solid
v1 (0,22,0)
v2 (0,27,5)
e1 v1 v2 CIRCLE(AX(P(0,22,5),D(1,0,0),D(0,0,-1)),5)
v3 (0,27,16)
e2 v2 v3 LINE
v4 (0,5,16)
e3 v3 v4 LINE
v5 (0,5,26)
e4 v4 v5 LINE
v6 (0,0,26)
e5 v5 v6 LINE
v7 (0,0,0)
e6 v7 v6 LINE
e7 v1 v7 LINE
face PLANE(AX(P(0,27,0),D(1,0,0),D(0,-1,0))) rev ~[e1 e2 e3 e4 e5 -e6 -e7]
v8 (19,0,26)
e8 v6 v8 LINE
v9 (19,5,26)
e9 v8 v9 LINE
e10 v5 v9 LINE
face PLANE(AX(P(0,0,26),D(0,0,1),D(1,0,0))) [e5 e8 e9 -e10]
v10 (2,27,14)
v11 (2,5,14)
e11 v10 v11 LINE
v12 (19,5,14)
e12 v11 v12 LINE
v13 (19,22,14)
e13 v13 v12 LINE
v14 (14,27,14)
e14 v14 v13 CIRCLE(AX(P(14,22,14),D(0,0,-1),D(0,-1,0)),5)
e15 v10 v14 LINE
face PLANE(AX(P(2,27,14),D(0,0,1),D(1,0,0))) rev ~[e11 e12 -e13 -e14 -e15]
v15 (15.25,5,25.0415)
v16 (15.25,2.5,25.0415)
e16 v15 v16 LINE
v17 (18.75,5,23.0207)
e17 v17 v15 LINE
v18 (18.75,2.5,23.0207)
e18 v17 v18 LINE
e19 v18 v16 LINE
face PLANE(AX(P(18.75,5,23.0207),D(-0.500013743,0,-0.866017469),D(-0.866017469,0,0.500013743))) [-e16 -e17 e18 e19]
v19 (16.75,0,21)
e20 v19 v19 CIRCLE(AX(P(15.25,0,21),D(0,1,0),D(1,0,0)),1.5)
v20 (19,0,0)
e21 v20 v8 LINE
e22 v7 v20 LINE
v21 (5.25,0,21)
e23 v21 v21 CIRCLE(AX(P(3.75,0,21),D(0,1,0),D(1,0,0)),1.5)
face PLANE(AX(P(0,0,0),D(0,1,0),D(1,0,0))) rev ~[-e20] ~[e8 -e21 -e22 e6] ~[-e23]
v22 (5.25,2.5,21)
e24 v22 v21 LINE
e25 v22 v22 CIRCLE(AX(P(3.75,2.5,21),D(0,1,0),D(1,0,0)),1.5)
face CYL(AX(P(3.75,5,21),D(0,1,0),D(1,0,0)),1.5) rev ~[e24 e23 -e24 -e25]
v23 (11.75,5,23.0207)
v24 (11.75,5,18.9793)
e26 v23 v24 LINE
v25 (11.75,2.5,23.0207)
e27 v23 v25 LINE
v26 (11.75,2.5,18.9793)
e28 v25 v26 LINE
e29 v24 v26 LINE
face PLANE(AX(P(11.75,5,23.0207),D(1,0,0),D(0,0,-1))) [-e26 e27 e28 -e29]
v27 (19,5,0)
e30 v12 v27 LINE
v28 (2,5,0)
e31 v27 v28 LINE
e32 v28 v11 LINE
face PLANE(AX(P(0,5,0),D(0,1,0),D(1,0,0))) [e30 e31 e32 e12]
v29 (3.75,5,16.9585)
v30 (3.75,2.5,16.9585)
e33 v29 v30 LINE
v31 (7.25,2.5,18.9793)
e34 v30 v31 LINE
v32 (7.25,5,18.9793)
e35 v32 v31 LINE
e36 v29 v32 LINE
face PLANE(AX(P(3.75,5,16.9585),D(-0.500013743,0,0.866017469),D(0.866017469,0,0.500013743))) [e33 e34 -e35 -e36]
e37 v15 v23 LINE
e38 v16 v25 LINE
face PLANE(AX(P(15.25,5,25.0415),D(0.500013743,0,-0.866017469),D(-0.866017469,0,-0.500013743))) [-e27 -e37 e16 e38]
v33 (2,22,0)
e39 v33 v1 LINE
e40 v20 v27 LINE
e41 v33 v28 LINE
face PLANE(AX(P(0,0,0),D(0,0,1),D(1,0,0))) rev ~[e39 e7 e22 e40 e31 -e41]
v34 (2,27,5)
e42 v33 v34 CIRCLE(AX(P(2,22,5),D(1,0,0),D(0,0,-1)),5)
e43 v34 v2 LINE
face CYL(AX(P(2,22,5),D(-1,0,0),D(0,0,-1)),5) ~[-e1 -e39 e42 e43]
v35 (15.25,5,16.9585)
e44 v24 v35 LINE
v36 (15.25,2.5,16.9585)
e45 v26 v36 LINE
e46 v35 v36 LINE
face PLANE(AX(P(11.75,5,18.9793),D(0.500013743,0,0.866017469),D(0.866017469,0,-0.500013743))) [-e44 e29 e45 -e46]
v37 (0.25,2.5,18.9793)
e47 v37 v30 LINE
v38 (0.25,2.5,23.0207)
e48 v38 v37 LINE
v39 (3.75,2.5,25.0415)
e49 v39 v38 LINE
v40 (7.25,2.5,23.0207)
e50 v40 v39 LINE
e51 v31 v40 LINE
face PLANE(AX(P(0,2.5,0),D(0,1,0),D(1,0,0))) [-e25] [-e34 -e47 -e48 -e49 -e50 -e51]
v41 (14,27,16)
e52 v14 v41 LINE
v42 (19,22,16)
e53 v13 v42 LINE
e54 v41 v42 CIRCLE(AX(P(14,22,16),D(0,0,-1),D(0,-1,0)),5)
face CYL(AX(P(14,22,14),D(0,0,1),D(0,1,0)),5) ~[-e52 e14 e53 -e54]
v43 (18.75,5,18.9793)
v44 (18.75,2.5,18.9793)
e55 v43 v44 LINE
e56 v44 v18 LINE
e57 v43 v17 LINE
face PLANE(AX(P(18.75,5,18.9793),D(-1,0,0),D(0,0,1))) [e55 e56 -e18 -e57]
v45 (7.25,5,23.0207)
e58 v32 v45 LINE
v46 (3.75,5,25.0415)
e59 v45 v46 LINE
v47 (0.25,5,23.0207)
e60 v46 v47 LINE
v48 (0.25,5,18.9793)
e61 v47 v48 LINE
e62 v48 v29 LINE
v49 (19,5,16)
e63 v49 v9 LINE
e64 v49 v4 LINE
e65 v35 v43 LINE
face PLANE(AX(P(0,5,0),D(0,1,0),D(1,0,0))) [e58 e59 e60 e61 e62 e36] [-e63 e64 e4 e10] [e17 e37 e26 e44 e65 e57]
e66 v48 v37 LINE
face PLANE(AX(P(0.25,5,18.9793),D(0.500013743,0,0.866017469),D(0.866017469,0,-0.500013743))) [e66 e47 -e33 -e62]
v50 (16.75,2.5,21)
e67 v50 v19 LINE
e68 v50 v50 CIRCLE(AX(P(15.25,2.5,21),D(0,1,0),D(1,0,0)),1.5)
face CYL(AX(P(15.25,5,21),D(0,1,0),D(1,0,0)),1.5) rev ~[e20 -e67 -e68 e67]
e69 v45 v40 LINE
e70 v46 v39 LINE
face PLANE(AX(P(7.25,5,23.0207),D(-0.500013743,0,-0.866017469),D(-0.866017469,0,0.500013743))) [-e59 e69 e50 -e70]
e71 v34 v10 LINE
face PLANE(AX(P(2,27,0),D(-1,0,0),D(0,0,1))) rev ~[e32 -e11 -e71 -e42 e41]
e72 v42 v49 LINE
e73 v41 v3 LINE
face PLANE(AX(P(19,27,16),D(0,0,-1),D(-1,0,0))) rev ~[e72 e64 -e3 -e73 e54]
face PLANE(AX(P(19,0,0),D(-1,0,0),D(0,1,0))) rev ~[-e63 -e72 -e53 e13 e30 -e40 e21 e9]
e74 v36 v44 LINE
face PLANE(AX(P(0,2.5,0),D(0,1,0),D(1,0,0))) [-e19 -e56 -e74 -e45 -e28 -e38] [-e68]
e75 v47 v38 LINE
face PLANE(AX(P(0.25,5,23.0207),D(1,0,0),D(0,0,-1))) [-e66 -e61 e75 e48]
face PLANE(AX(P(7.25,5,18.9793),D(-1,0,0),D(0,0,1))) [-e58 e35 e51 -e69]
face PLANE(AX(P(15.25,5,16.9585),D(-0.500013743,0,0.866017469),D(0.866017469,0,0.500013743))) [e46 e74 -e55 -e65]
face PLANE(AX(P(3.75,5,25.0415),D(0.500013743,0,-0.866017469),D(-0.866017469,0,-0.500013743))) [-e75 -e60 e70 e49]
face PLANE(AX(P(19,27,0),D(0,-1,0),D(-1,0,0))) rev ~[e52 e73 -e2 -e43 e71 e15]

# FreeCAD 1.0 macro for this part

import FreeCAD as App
import Part
import Sketcher
from FreeCAD import Vector
Q = App.Units.Quantity


def edges_at(feature, points):
    """Names of the edges that pass closest to the given points."""
    edges = feature.Shape.Edges
    near = lambda p: min(range(len(edges)), key=lambda i: edges[i].distToShape(Part.Vertex(*p))[0])
    return sorted({f"Edge{near(p) + 1}" for p in points})


def add_polygon(sketch, points):
    """Adds a closed chain of lines whose ends are joined by coincident constraints."""
    first, n = sketch.GeometryCount, len(points)
    for a, b in zip(points, points[1:] + points[:1]):
        sketch.addGeometry(Part.LineSegment(App.Vector(*a, 0), App.Vector(*b, 0)), False)
    for i in range(n):
        sketch.addConstraint(Sketcher.Constraint("Coincident", first + i, 2, first + (i + 1) % n, 1))

doc = App.newDocument("Part")
body = doc.addObject("PartDesign::Body", "Body")

# Sketch on XY plane
sketch1 = body.newObject("Sketcher::SketchObject", "Sketch")
sketch1.AttachmentSupport = (doc.getObject("XY_Plane"), [""])
sketch1.MapMode = "FlatFace"
add_polygon(sketch1, [(0, 27), (0, 0), (19, 0), (19, 27)])  # lines 0-3
sketch1.addConstraint([
    Sketcher.Constraint("Vertical", 0),
    Sketcher.Constraint("Horizontal", 1),
    Sketcher.Constraint("Vertical", 2),
    Sketcher.Constraint("Horizontal", 3),
    Sketcher.Constraint("Coincident", 0, 2, -1, 1),
    Sketcher.Constraint("DistanceX", 1, 1, 1, 2, 19.0),
    Sketcher.Constraint("DistanceY", 0, 2, 0, 1, 27.0),
])
pad1 = body.newObject("PartDesign::Pad", "Pad")
pad1.Profile = sketch1
pad1.Length = 26

# Sketch on XZ plane
sketch2 = body.newObject("Sketcher::SketchObject", "Sketch001")
sketch2.AttachmentSupport = (doc.getObject("XZ_Plane"), [""])
sketch2.MapMode = "FlatFace"
sketch2.AttachmentOffset = App.Placement(Vector(0, 0, -27), App.Rotation())
add_polygon(sketch2, [(19, 14), (19, 0), (2, 0), (2, 14)])  # lines 0-3
add_polygon(sketch2, [(19, 26), (19, 16), (0, 16), (0, 26)])  # lines 4-7
sketch2.addConstraint([
    Sketcher.Constraint("Vertical", 0),
    Sketcher.Constraint("Horizontal", 1),
    Sketcher.Constraint("Vertical", 2),
    Sketcher.Constraint("Horizontal", 3),
    Sketcher.Constraint("Vertical", 4),
    Sketcher.Constraint("Horizontal", 5),
    Sketcher.Constraint("Vertical", 6),
    Sketcher.Constraint("Horizontal", 7),
    Sketcher.Constraint("PointOnObject", 0, 2, -1),
    Sketcher.Constraint("PointOnObject", 5, 2, -2),
    Sketcher.Constraint("Vertical", 3, 2, 4, 2),
    Sketcher.Constraint("DistanceY", 0, 2, 0, 1, 14.0),
    Sketcher.Constraint("DistanceY", 4, 2, 4, 1, 10.0),
    Sketcher.Constraint("DistanceX", -1, 1, 1, 2, 2.0),
    Sketcher.Constraint("DistanceY", 3, 2, 4, 2, 2.0),
    Sketcher.Constraint("DistanceX", 1, 2, 1, 1, 17.0),
])
pocket1 = body.newObject("PartDesign::Pocket", "Pocket")
pocket1.Profile = sketch2
pocket1.Length = 22
pocket1.Reversed = True

# Sketch on XZ plane
sketch3 = body.newObject("Sketcher::SketchObject", "Sketch002")
sketch3.AttachmentSupport = (doc.getObject("XZ_Plane"), [""])
sketch3.MapMode = "FlatFace"
sketch3.AttachmentOffset = App.Placement(Vector(0, 0, -5), App.Rotation())
sketch3.addGeometry([
    Part.Circle(Vector(3.75, 21, 0), Vector(0, 0, 1), 1.5),
    Part.Circle(Vector(15.25, 21, 0), Vector(0, 0, 1), 1.5),
], False)
sketch3.addConstraint([
    Sketcher.Constraint("Equal", 0, 1),
    Sketcher.Constraint("Horizontal", 0, 3, 1, 3),
    Sketcher.Constraint("Diameter", 0, 3.0),
    Sketcher.Constraint("DistanceX", 0, 3, 1, 3, 11.5),
    Sketcher.Constraint("DistanceX", -1, 1, 0, 3, 3.75),
    Sketcher.Constraint("DistanceY", -1, 1, 0, 3, 21.0),
])
pocket2 = body.newObject("PartDesign::Pocket", "Pocket001")
pocket2.Profile = sketch3
pocket2.Type = "ThroughAll"
pocket2.Reversed = True

# Sketch on XZ plane
sketch4 = body.newObject("Sketcher::SketchObject", "Sketch003")
sketch4.AttachmentSupport = (doc.getObject("XZ_Plane"), [""])
sketch4.MapMode = "FlatFace"
sketch4.AttachmentOffset = App.Placement(Vector(0, 0, -5), App.Rotation())
add_polygon(sketch4, [(7.25, 18.9793), (3.75, 16.9585), (0.25, 18.9793), (0.25, 23.0207), (3.75, 25.0415), (7.25, 23.0207)])  # lines 0-5
sketch4.addGeometry(Part.Circle(Vector(3.75, 21, 0), Vector(0, 0, 1), 1.5), False)  # 6
add_polygon(sketch4, [(18.75, 18.9793), (15.25, 16.9585), (11.75, 18.9793), (11.75, 23.0207), (15.25, 25.0415), (18.75, 23.0207)])  # lines 7-12
sketch4.addGeometry(Part.Circle(Vector(15.25, 21, 0), Vector(0, 0, 1), 1.5), False)  # 13
sketch4.addConstraint([
    Sketcher.Constraint("Vertical", 2),
    Sketcher.Constraint("Vertical", 5),
    Sketcher.Constraint("Vertical", 9),
    Sketcher.Constraint("Vertical", 12),
    Sketcher.Constraint("Equal", 6, 13),
    Sketcher.Constraint("Parallel", 0, 3),
    Sketcher.Constraint("Parallel", 1, 4),
    Sketcher.Constraint("Parallel", 3, 7),
    Sketcher.Constraint("Parallel", 4, 8),
    Sketcher.Constraint("Parallel", 7, 10),
    Sketcher.Constraint("Parallel", 8, 11),
    Sketcher.Constraint("Horizontal", 6, 3, 13, 3),
    Sketcher.Constraint("Horizontal", 2, 2, 4, 2),
    Sketcher.Constraint("Horizontal", 1, 2, 5, 2),
    Sketcher.Constraint("Horizontal", 0, 2, 7, 2),
    Sketcher.Constraint("Horizontal", 5, 2, 8, 2),
    Sketcher.Constraint("Horizontal", 4, 2, 9, 2),
    Sketcher.Constraint("Horizontal", 3, 2, 10, 2),
    Sketcher.Constraint("Horizontal", 9, 2, 11, 2),
    Sketcher.Constraint("Vertical", 6, 3, 0, 2),
    Sketcher.Constraint("Vertical", 0, 2, 3, 2),
    Sketcher.Constraint("Vertical", 13, 3, 7, 2),
    Sketcher.Constraint("Diameter", 6, 3.0),
    Sketcher.Constraint("DistanceX", 2, 2, 4, 2, 7.0),
    Sketcher.Constraint("Angle", 0, Q("-149.999 deg")),
    Sketcher.Constraint("DistanceY", -1, 1, 6, 3, 21.0),
    Sketcher.Constraint("DistanceX", 1, 2, 13, 3, 15.0),
    Sketcher.Constraint("DistanceX", -1, 1, 6, 3, 3.75),
    Sketcher.Constraint("DistanceY", 2, 1, 2, 2, 4.0414),
    Sketcher.Constraint("DistanceY", -1, 1, 0, 2, 16.9585),
])
pocket3 = body.newObject("PartDesign::Pocket", "Pocket002")
pocket3.Profile = sketch4
pocket3.Length = 2.5
pocket3.Reversed = True
doc.recompute()

fillet = body.newObject("PartDesign::Fillet", "Fillet")
fillet.Base = (pocket3, edges_at(pocket3, [(1, 27, 0), (19, 27, 15)]))
fillet.Radius = 5

doc.recompute()
